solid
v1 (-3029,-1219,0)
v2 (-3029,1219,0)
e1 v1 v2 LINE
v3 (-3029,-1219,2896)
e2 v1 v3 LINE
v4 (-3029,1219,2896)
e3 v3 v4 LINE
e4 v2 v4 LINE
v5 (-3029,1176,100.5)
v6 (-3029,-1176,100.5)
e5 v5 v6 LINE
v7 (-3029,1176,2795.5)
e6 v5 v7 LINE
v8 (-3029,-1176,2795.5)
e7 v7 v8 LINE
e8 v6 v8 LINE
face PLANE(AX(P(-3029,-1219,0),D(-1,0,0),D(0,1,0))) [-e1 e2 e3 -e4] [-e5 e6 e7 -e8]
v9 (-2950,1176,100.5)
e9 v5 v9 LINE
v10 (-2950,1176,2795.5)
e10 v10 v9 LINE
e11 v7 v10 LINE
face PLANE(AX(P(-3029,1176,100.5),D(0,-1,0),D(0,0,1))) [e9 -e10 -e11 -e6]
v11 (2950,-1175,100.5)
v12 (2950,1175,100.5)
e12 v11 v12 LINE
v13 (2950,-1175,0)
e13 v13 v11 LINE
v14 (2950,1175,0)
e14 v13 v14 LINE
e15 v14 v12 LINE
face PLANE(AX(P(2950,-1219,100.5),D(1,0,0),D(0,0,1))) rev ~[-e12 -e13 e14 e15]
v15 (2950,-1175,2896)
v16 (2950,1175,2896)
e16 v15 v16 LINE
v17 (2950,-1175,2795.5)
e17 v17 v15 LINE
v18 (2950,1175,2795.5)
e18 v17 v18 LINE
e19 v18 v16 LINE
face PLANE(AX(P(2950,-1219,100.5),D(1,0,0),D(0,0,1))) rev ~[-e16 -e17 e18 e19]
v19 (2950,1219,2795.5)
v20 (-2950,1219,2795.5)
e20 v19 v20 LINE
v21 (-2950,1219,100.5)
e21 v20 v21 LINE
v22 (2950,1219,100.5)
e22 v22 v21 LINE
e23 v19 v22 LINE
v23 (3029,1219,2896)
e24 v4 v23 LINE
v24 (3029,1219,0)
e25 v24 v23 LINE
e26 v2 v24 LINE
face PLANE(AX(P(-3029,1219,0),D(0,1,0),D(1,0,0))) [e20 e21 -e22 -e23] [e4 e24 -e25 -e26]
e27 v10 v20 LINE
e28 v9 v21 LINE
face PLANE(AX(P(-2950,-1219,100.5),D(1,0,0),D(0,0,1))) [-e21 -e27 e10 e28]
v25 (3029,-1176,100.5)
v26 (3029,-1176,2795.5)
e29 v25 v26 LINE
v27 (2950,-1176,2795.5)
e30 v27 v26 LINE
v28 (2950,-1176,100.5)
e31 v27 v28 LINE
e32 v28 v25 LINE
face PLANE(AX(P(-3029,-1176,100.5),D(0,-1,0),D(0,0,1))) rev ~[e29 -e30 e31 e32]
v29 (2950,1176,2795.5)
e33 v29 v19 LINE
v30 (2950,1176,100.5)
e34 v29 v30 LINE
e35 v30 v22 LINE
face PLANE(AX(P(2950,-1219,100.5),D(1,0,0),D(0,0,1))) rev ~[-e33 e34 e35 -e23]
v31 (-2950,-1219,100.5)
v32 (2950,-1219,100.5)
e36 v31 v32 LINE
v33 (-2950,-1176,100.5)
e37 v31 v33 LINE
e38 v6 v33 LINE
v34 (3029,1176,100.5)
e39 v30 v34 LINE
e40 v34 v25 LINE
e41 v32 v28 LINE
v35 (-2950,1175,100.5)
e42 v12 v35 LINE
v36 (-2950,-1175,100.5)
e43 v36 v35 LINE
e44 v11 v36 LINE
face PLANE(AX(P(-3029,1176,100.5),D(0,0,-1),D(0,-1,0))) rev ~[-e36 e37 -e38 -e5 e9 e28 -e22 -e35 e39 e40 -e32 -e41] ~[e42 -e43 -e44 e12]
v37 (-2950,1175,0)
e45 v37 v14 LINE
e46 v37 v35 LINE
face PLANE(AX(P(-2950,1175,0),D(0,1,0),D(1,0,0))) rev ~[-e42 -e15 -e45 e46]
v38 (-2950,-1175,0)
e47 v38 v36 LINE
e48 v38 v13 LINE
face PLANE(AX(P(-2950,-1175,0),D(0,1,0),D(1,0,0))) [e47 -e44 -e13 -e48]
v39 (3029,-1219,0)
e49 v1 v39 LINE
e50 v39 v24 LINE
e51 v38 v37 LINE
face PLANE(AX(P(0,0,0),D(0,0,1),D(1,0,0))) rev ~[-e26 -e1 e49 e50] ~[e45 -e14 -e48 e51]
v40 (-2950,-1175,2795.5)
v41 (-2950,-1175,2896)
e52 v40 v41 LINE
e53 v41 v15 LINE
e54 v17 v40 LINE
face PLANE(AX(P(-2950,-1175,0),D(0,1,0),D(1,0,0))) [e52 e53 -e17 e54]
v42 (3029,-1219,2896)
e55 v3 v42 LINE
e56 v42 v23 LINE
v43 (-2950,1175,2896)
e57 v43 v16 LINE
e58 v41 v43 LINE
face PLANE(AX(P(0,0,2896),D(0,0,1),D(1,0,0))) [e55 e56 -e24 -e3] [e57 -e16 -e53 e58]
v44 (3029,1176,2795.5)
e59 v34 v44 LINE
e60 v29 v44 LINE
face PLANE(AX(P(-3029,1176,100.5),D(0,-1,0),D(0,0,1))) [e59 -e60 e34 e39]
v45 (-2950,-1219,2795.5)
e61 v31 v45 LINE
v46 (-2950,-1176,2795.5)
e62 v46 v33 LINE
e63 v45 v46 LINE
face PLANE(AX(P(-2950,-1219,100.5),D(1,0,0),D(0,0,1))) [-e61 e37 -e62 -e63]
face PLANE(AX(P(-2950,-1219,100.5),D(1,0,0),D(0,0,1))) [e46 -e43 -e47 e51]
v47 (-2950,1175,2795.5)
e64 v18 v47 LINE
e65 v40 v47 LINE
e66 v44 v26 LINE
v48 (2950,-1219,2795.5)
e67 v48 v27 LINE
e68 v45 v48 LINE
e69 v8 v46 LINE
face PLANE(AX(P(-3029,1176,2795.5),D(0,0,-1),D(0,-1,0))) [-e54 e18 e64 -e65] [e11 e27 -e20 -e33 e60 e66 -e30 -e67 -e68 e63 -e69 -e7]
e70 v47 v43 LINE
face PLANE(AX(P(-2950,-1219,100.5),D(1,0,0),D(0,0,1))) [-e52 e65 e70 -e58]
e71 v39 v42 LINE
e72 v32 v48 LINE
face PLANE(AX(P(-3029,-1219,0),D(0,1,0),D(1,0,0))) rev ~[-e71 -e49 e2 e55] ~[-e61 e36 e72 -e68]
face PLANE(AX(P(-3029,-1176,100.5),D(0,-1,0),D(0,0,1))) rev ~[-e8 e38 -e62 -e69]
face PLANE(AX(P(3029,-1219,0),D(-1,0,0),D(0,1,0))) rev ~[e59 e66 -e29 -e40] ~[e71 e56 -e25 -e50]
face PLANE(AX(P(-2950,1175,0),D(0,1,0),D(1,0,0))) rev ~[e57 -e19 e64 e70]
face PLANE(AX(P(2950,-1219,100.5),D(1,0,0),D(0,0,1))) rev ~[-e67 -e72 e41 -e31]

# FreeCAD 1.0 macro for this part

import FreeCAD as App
import Part
import Sketcher
Q = App.Units.Quantity

doc = App.newDocument("Part")
body = doc.addObject("PartDesign::Body", "Body")

# Sketch on XY plane
sketch1 = body.newObject("Sketcher::SketchObject", "Sketch")
sketch1.AttachmentSupport = (doc.getObject("XY_Plane"), [""])
sketch1.MapMode = "FlatFace"
sketch1.addGeometry([
    Part.LineSegment(App.Vector(-3029, 1219, 0), App.Vector(-3029, -1219, 0)),  # 0
    Part.LineSegment(App.Vector(-3029, -1219, 0), App.Vector(3029, -1219, 0)),  # 1
    Part.LineSegment(App.Vector(3029, -1219, 0), App.Vector(3029, 1219, 0)),  # 2
    Part.LineSegment(App.Vector(3029, 1219, 0), App.Vector(-3029, 1219, 0)),  # 3
    Part.LineSegment(App.Vector(2950, -1175, 0), App.Vector(-2950, -1175, 0)),  # 4
    Part.LineSegment(App.Vector(-2950, -1175, 0), App.Vector(-2950, 1175, 0)),  # 5
    Part.LineSegment(App.Vector(-2950, 1175, 0), App.Vector(2950, 1175, 0)),  # 6
    Part.LineSegment(App.Vector(2950, 1175, 0), App.Vector(2950, -1175, 0)),  # 7
], False)
sketch1.addConstraint([
    Sketcher.Constraint("Coincident", 0, 2, 1, 1),
    Sketcher.Constraint("Coincident", 1, 2, 2, 1),
    Sketcher.Constraint("Coincident", 2, 2, 3, 1),
    Sketcher.Constraint("Coincident", 3, 2, 0, 1),
    Sketcher.Constraint("Coincident", 4, 2, 5, 1),
    Sketcher.Constraint("Coincident", 5, 2, 6, 1),
    Sketcher.Constraint("Coincident", 6, 2, 7, 1),
    Sketcher.Constraint("Coincident", 7, 2, 4, 1),
    Sketcher.Constraint("Vertical", 0),
    Sketcher.Constraint("Horizontal", 1),
    Sketcher.Constraint("Vertical", 2),
    Sketcher.Constraint("Horizontal", 3),
    Sketcher.Constraint("Horizontal", 4),
    Sketcher.Constraint("Vertical", 5),
    Sketcher.Constraint("Horizontal", 6),
    Sketcher.Constraint("Vertical", 7),
    Sketcher.Constraint("Symmetric", 0, 2, 2, 2, -1, 1),
    Sketcher.Constraint("Symmetric", 4, 2, 6, 2, -1, 1),
    Sketcher.Constraint("DistanceX", 1, 1, 1, 2, Q("6058 mm")),
    Sketcher.Constraint("DistanceX", 4, 2, 4, 1, Q("5900 mm")),
    Sketcher.Constraint("DistanceY", 0, 2, 0, 1, Q("2438 mm")),
    Sketcher.Constraint("DistanceY", 5, 1, 5, 2, Q("2350 mm")),
])
pad1 = body.newObject("PartDesign::Pad", "Pad")
pad1.Profile = sketch1
pad1.Length = 2896

# Sketch on XZ plane
sketch2 = body.newObject("Sketcher::SketchObject", "Sketch001")
sketch2.AttachmentSupport = (doc.getObject("XZ_Plane"), [""])
sketch2.MapMode = "FlatFace"
sketch2.AttachmentOffset = App.Placement(App.Vector(0, 0, 1219), App.Rotation())
sketch2.addGeometry([
    Part.LineSegment(App.Vector(-2950, 2796, 0), App.Vector(-2950, 100, 0)),
    Part.LineSegment(App.Vector(-2950, 100, 0), App.Vector(2950, 100, 0)),
    Part.LineSegment(App.Vector(2950, 100, 0), App.Vector(2950, 2796, 0)),
    Part.LineSegment(App.Vector(2950, 2796, 0), App.Vector(-2950, 2796, 0)),
], False)
sketch2.addConstraint([
    Sketcher.Constraint("Coincident", 0, 2, 1, 1),
    Sketcher.Constraint("Coincident", 1, 2, 2, 1),
    Sketcher.Constraint("Coincident", 2, 2, 3, 1),
    Sketcher.Constraint("Coincident", 3, 2, 0, 1),
    Sketcher.Constraint("Vertical", 0),
    Sketcher.Constraint("Horizontal", 1),
    Sketcher.Constraint("Vertical", 2),
    Sketcher.Constraint("Horizontal", 3),
    Sketcher.Constraint("DistanceX", 1, 1, 1, 2, Q("5900 mm")),
    Sketcher.Constraint("DistanceY", 0, 2, 0, 1, Q("2695 mm")),
    Sketcher.Constraint("DistanceX", 0, 2, -1, 1, Q("2950 mm")),
    Sketcher.Constraint("DistanceY", -1, 1, 0, 2, Q("100.5 mm")),
])
pocket1 = body.newObject("PartDesign::Pocket", "Pocket")
pocket1.Profile = sketch2
pocket1.Type = "ThroughAll"

# Sketch on YZ plane
sketch3 = body.newObject("Sketcher::SketchObject", "Sketch002")
sketch3.AttachmentSupport = (doc.getObject("YZ_Plane"), [""])
sketch3.MapMode = "FlatFace"
sketch3.AttachmentOffset = App.Placement(App.Vector(0, 0, -3029), App.Rotation())
sketch3.addGeometry([
    Part.LineSegment(App.Vector(1176, 2796, 0), App.Vector(1176, 100, 0)),
    Part.LineSegment(App.Vector(1176, 100, 0), App.Vector(-1176, 100, 0)),
    Part.LineSegment(App.Vector(-1176, 100, 0), App.Vector(-1176, 2796, 0)),
    Part.LineSegment(App.Vector(-1176, 2796, 0), App.Vector(1176, 2796, 0)),
], False)
sketch3.addConstraint([
    Sketcher.Constraint("Coincident", 0, 2, 1, 1),
    Sketcher.Constraint("Coincident", 1, 2, 2, 1),
    Sketcher.Constraint("Coincident", 2, 2, 3, 1),
    Sketcher.Constraint("Coincident", 3, 2, 0, 1),
    Sketcher.Constraint("Vertical", 0),
    Sketcher.Constraint("Horizontal", 1),
    Sketcher.Constraint("Vertical", 2),
    Sketcher.Constraint("Horizontal", 3),
    Sketcher.Constraint("DistanceX", 1, 2, 1, 1, Q("2352 mm")),
    Sketcher.Constraint("DistanceY", 0, 2, 0, 1, Q("2695 mm")),
    Sketcher.Constraint("DistanceX", -1, 1, 0, 2, Q("1176 mm")),
    Sketcher.Constraint("DistanceY", -1, 1, 0, 2, Q("100.5 mm")),
])
pocket2 = body.newObject("PartDesign::Pocket", "Pocket001")
pocket2.Profile = sketch3
pocket2.Type = "ThroughAll"
pocket2.Reversed = True

doc.recompute()
